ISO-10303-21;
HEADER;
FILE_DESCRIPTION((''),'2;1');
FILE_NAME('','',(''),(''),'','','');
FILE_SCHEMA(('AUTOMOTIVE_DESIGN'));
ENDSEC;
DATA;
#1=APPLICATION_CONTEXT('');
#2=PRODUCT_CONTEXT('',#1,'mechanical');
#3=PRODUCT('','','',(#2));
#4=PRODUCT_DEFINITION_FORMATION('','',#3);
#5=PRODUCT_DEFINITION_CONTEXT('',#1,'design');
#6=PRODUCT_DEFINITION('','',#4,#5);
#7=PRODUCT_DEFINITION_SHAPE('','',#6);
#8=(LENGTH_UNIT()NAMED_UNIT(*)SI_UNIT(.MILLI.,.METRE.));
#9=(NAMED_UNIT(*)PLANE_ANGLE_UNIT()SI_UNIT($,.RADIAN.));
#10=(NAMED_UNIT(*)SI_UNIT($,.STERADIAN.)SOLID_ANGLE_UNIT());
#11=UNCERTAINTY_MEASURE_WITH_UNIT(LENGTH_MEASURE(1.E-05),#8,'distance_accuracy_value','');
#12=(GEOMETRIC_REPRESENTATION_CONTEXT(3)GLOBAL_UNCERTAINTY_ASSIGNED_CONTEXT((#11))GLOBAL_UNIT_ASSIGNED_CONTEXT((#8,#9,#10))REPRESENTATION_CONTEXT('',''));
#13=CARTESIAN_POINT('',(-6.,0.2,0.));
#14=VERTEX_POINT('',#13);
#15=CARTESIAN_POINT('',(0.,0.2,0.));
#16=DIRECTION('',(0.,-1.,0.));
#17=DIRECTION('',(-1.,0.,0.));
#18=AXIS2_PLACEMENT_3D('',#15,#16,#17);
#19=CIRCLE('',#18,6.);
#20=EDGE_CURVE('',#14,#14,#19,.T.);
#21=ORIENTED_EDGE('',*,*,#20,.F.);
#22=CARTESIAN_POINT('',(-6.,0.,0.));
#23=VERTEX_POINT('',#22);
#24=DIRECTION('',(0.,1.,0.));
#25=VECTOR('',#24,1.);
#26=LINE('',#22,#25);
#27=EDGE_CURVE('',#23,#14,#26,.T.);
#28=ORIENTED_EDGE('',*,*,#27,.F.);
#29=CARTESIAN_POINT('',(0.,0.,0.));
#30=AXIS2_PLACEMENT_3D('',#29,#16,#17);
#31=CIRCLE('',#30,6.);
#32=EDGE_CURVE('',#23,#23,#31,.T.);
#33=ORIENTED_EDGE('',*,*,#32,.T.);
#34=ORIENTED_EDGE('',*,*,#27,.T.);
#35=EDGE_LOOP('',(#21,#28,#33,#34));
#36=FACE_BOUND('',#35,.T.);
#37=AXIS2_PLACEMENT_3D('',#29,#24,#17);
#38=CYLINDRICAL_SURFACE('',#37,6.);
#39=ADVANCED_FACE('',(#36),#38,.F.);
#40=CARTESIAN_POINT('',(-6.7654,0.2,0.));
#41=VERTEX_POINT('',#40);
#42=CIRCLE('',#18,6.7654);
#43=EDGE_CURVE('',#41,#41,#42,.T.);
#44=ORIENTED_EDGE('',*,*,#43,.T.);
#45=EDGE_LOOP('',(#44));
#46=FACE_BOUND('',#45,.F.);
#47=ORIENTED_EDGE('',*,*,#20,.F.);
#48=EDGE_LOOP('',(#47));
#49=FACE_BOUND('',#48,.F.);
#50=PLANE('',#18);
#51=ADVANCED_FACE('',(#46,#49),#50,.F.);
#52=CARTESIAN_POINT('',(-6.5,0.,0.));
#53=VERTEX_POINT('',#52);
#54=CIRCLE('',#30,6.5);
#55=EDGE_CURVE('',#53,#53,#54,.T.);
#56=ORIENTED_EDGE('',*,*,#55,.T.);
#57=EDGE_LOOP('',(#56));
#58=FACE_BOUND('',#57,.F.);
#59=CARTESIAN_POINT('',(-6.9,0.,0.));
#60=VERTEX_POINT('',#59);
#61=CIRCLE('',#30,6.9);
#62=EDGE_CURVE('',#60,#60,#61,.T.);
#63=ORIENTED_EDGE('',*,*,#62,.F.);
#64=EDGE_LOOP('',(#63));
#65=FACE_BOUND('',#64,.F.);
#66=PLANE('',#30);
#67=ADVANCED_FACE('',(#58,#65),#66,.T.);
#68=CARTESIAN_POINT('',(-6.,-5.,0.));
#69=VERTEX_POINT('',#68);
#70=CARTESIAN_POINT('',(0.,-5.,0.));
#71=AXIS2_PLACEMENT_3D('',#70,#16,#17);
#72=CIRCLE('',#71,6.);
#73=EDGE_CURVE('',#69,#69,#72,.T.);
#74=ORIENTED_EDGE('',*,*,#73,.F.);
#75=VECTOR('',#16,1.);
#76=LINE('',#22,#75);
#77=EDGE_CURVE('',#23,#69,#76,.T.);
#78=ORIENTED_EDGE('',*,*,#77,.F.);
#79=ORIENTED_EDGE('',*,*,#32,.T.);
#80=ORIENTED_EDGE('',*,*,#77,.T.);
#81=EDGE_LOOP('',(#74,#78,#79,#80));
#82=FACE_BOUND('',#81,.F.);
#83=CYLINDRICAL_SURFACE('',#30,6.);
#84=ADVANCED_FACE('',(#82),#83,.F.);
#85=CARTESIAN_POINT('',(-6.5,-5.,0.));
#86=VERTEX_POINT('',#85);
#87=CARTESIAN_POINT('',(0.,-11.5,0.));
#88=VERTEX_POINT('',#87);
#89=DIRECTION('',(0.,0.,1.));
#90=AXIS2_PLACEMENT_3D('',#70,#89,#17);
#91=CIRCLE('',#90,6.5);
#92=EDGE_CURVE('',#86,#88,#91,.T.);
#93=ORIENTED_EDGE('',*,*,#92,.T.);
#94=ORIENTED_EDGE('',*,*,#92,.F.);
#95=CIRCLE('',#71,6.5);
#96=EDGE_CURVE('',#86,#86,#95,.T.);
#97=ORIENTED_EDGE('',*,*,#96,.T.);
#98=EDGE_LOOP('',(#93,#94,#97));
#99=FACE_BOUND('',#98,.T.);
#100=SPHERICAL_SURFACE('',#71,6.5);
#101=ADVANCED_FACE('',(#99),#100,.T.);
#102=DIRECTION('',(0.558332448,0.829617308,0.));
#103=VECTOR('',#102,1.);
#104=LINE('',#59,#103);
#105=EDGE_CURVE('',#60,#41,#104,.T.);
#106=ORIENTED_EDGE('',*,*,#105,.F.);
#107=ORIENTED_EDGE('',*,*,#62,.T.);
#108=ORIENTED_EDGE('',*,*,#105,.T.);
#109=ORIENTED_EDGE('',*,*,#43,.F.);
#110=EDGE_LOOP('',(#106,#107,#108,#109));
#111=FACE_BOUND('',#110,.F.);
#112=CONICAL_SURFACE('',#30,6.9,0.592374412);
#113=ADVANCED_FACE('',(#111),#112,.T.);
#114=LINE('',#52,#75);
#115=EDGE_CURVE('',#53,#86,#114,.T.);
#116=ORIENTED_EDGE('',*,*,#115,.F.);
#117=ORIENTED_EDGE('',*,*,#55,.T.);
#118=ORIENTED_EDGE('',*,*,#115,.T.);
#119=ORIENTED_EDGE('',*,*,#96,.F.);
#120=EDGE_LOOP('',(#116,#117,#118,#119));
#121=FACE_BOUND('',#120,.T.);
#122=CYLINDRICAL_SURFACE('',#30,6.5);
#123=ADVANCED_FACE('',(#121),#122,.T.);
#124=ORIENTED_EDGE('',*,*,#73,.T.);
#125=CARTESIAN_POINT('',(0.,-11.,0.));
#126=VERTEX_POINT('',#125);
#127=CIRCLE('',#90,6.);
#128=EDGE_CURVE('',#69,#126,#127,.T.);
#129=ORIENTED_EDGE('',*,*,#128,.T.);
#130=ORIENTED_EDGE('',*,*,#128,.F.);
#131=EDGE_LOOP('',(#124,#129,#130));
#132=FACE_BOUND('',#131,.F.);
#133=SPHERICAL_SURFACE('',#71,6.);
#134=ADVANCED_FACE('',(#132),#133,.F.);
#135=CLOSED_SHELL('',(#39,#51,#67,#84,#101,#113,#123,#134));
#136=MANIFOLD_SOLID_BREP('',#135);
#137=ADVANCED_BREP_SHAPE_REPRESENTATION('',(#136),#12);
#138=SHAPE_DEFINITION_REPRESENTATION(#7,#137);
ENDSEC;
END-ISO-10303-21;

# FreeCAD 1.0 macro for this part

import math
import FreeCAD as App
import Part
import Sketcher
from FreeCAD import Vector
Q = App.Units.Quantity

doc = App.newDocument("Part")
body = doc.addObject("PartDesign::Body", "Body")

sketch1 = body.newObject("Sketcher::SketchObject", "Sketch")
sketch1.AttachmentSupport = (doc.getObject("XY_Plane"), [""])
sketch1.MapMode = "FlatFace"
sketch1.addGeometry(Part.LineSegment(Vector(-6, -5, 0), Vector(-6, 0.2, 0)), False)
sketch1.addGeometry(Part.LineSegment(Vector(-6, 0.2, 0), Vector(-6.7654, 0.2, 0)), False)
sketch1.addGeometry(Part.LineSegment(Vector(-6.7654, 0.2, 0), Vector(-6.9, 0, 0)), False)
sketch1.addGeometry(Part.LineSegment(Vector(-6.9, 0, 0), Vector(-6.5, 0, 0)), False)
sketch1.addGeometry(Part.LineSegment(Vector(-6.5, 0, 0), Vector(-6.5, -5, 0)), False)
sketch1.addGeometry(Part.ArcOfCircle(Part.Circle(Vector(0, -5, 0), Vector(0, 0, 1), 6.5), math.radians(180), math.radians(270)), False)
sketch1.addGeometry(Part.LineSegment(Vector(0, -11.5, 0), Vector(0, -11, 0)), False)
sketch1.addGeometry(Part.ArcOfCircle(Part.Circle(Vector(0, -5, 0), Vector(0, 0, 1), 6), math.radians(180), math.radians(270)), False)
sketch1.addConstraint(Sketcher.Constraint("Coincident", 0, 2, 1, 1))
sketch1.addConstraint(Sketcher.Constraint("Coincident", 1, 2, 2, 1))
sketch1.addConstraint(Sketcher.Constraint("Coincident", 2, 2, 3, 1))
sketch1.addConstraint(Sketcher.Constraint("Coincident", 3, 2, 4, 1))
sketch1.addConstraint(Sketcher.Constraint("Tangent", 4, 2, 5, 1))
sketch1.addConstraint(Sketcher.Constraint("Coincident", 5, 2, 6, 1))
sketch1.addConstraint(Sketcher.Constraint("Coincident", 6, 2, 7, 2))
sketch1.addConstraint(Sketcher.Constraint("Tangent", 7, 1, 0, 1))
sketch1.addConstraint(Sketcher.Constraint("Vertical", 0))
sketch1.addConstraint(Sketcher.Constraint("Horizontal", 1))
sketch1.addConstraint(Sketcher.Constraint("Horizontal", 3))
sketch1.addConstraint(Sketcher.Constraint("Vertical", 4))
sketch1.addConstraint(Sketcher.Constraint("Vertical", 6))
sketch1.addConstraint(Sketcher.Constraint("Coincident", 7, 3, 5, 3))
sketch1.addConstraint(Sketcher.Constraint("PointOnObject", 5, 3, -2))
sketch1.addConstraint(Sketcher.Constraint("PointOnObject", 2, 2, -1))
sketch1.addConstraint(Sketcher.Constraint("PointOnObject", 5, 2, -2))
sketch1.addConstraint(Sketcher.Constraint("DistanceX", 3, 1, 3, 2, Q("0.4 mm")))
sketch1.addConstraint(Sketcher.Constraint("DistanceY", 6, 1, 6, 2, Q("0.5 mm")))
sketch1.addConstraint(Sketcher.Constraint("Radius", 7, Q("6 mm")))
sketch1.addConstraint(Sketcher.Constraint("DistanceY", -1, 1, 0, 2, Q("0.2 mm")))
sketch1.addConstraint(Sketcher.Constraint("DistanceY", 4, 2, 4, 1, Q("5 mm")))
sketch1.addConstraint(Sketcher.Constraint("Angle", 2, Q("-123.9406 deg")))
revolution = body.newObject("PartDesign::Revolution", "Revolution")
revolution.Profile = sketch1
revolution.ReferenceAxis = (sketch1, ["V_Axis"])
revolution.Angle = 360

doc.recompute()
